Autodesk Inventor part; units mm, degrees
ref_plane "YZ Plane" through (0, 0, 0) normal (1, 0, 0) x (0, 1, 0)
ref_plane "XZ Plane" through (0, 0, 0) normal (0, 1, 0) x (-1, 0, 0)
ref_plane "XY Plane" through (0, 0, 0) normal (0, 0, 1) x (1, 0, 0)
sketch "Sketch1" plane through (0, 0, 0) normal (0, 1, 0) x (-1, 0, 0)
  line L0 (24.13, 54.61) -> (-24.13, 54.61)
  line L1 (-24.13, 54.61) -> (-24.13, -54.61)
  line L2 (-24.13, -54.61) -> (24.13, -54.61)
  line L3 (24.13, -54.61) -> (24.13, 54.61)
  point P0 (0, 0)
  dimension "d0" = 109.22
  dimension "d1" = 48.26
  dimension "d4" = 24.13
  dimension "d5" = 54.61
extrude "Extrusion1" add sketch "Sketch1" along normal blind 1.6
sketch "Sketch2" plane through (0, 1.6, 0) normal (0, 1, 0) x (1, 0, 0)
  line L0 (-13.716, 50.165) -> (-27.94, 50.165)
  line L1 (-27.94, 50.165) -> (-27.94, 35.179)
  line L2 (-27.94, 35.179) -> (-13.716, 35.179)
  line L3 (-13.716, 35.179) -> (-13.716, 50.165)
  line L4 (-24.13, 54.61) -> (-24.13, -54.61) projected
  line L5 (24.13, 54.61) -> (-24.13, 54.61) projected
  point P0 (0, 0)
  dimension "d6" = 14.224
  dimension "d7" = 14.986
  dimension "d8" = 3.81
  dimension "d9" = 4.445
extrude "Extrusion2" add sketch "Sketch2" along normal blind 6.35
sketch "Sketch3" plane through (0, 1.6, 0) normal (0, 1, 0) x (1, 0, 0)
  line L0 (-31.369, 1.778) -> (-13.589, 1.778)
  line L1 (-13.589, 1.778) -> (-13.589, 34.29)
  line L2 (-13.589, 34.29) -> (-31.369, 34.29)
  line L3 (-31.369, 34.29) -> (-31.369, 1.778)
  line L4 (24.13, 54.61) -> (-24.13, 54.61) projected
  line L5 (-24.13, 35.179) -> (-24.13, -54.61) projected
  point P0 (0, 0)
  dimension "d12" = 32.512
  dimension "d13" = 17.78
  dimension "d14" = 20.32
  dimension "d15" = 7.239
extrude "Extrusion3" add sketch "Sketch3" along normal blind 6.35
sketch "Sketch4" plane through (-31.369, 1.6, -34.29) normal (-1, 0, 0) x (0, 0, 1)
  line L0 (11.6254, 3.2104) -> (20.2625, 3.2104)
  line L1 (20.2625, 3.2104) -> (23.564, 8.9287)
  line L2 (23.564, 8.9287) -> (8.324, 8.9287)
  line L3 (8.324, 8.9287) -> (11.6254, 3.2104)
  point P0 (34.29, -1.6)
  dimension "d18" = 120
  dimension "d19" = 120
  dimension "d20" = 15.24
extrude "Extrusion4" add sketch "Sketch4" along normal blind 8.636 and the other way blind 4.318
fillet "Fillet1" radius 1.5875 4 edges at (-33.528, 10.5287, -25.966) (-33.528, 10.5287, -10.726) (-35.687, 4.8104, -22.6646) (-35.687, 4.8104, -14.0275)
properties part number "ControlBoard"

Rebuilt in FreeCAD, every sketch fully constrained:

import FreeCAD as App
import Part
import Sketcher
from FreeCAD import Vector
Q = App.Units.Quantity


def edges_at(feature, points):
    """Names of the edges that pass closest to the given points."""
    edges = feature.Shape.Edges
    near = lambda p: min(range(len(edges)), key=lambda i: edges[i].distToShape(Part.Vertex(*p))[0])
    return sorted({f"Edge{near(p) + 1}" for p in points})


def add_polygon(sketch, points):
    """Adds a closed chain of lines whose ends are joined by coincident constraints."""
    first, n = sketch.GeometryCount, len(points)
    for a, b in zip(points, points[1:] + points[:1]):
        sketch.addGeometry(Part.LineSegment(App.Vector(*a, 0), App.Vector(*b, 0)), False)
    for i in range(n):
        sketch.addConstraint(Sketcher.Constraint("Coincident", first + i, 2, first + (i + 1) % n, 1))

doc = App.newDocument("Part")
params = doc.addObject("Spreadsheet::Sheet", "Params")
for row, (alias, value) in enumerate([
    ("sketch1_width", "1.9 in"),
    ("sketch1_height", "4.3 in"),
    ("pad1_length", "0.0629921 in"),
    ("sketch2_width", "0.56 in"),
    ("sketch2_height", "0.59 in"),
    ("pad2_length", "0.25 in"),
    ("sketch3_width", "0.7 in"),
    ("sketch3_height", "1.28 in"),
    ("pad3_length", "0.25 in"),
    ("sketch4_height", "0.6 in"),
    ("pad4_length", "0.34 in"),
    ("pad4_length2", "0.17 in"),
    ("fillet_radius", "0.0625 in"),
], start=1):
    params.set(f"A{row}", alias)
    params.set(f"B{row}", "=" + value)
    params.setAlias(f"B{row}", alias)

body = doc.addObject("PartDesign::Body", "Body")

# Sketch on XZ plane
sketch1 = body.newObject("Sketcher::SketchObject", "Sketch")
sketch1.AttachmentSupport = (doc.getObject("XZ_Plane"), [""])
sketch1.MapMode = "FlatFace"
add_polygon(sketch1, [(-24, -55), (-24, 55), (24, 55), (24, -55)])  # lines 0-3
sketch1.addConstraint(Sketcher.Constraint("Vertical", 0))
sketch1.addConstraint(Sketcher.Constraint("Horizontal", 1))
sketch1.addConstraint(Sketcher.Constraint("Vertical", 2))
sketch1.addConstraint(Sketcher.Constraint("Horizontal", 3))
sketch1.addConstraint(Sketcher.Constraint("Symmetric", 0, 2, 2, 2, -1, 1))
sketch1.addConstraint(Sketcher.Constraint("DistanceX", 1, 1, 1, 2, Q("1.9 in")))
sketch1.addConstraint(Sketcher.Constraint("DistanceY", 0, 1, 0, 2, Q("4.3 in")))
sketch1.setExpression("Constraints[9]", "Params.sketch1_width")
sketch1.setExpression("Constraints[10]", "Params.sketch1_height")
pad1 = body.newObject("PartDesign::Pad", "Pad")
pad1.Profile = sketch1
pad1.setExpression("Length", "Params.pad1_length")
pad1.Reversed = True

# Sketch on XZ plane
sketch2 = body.newObject("Sketcher::SketchObject", "Sketch001")
sketch2.AttachmentSupport = (doc.getObject("XZ_Plane"), [""])
sketch2.MapMode = "FlatFace"
sketch2.AttachmentOffset = App.Placement(Vector(0, 0, -0.0629921 * 25.4), App.Rotation())
add_polygon(sketch2, [(-14, -35), (-14, -50), (-28, -50), (-28, -35)])  # lines 0-3
sketch2.addConstraint(Sketcher.Constraint("Vertical", 0))
sketch2.addConstraint(Sketcher.Constraint("Horizontal", 1))
sketch2.addConstraint(Sketcher.Constraint("Vertical", 2))
sketch2.addConstraint(Sketcher.Constraint("Horizontal", 3))
sketch2.addConstraint(Sketcher.Constraint("DistanceX", 1, 2, 1, 1, Q("0.56 in")))
sketch2.addConstraint(Sketcher.Constraint("DistanceY", 0, 2, 0, 1, Q("0.59 in")))
sketch2.addConstraint(Sketcher.Constraint("DistanceX", 1, 2, -1, 1, Q("1.1 in")))
sketch2.addConstraint(Sketcher.Constraint("DistanceY", 0, 2, -1, 1, Q("1.975 in")))
sketch2.setExpression("Constraints[8]", "Params.sketch2_width")
sketch2.setExpression("Constraints[9]", "Params.sketch2_height")
pad2 = body.newObject("PartDesign::Pad", "Pad001")
pad2.Profile = sketch2
pad2.setExpression("Length", "Params.pad2_length")
pad2.Reversed = True

# Sketch on XZ plane
sketch3 = body.newObject("Sketcher::SketchObject", "Sketch002")
sketch3.AttachmentSupport = (doc.getObject("XZ_Plane"), [""])
sketch3.MapMode = "FlatFace"
sketch3.AttachmentOffset = App.Placement(Vector(0, 0, -0.0629921 * 25.4), App.Rotation())
add_polygon(sketch3, [(-31, -34), (-31, -2), (-14, -2), (-14, -34)])  # lines 0-3
sketch3.addConstraint(Sketcher.Constraint("Vertical", 0))
sketch3.addConstraint(Sketcher.Constraint("Horizontal", 1))
sketch3.addConstraint(Sketcher.Constraint("Vertical", 2))
sketch3.addConstraint(Sketcher.Constraint("Horizontal", 3))
sketch3.addConstraint(Sketcher.Constraint("DistanceX", 1, 1, 1, 2, Q("0.7 in")))
sketch3.addConstraint(Sketcher.Constraint("DistanceY", 0, 1, 0, 2, Q("1.28 in")))
sketch3.addConstraint(Sketcher.Constraint("DistanceY", 0, 2, -1, 1, Q("0.07 in")))
sketch3.addConstraint(Sketcher.Constraint("DistanceX", 0, 2, -1, 1, Q("1.235 in")))
sketch3.setExpression("Constraints[8]", "Params.sketch3_width")
sketch3.setExpression("Constraints[9]", "Params.sketch3_height")
pad3 = body.newObject("PartDesign::Pad", "Pad002")
pad3.Profile = sketch3
pad3.setExpression("Length", "Params.pad3_length")
pad3.Reversed = True

# Sketch on YZ plane
sketch4 = body.newObject("Sketcher::SketchObject", "Sketch003")
sketch4.AttachmentSupport = (doc.getObject("YZ_Plane"), [""])
sketch4.MapMode = "FlatFace"
sketch4.AttachmentOffset = App.Placement(Vector(0, 0, -1.235 * 25.4), App.Rotation())
add_polygon(sketch4, [(11, -26), (5, -23), (5, -14), (11, -11)])  # lines 0-3
sketch4.addConstraint(Sketcher.Constraint("Vertical", 1))
sketch4.addConstraint(Sketcher.Constraint("Vertical", 3))
sketch4.addConstraint(Sketcher.Constraint("Equal", 0, 2))
sketch4.addConstraint(Sketcher.Constraint("DistanceY", 3, 2, 3, 1, Q("0.6 in")))
sketch4.addConstraint(Sketcher.Constraint("Angle", 0, Q("150.0005 deg")))
sketch4.addConstraint(Sketcher.Constraint("DistanceY", 1, 1, 1, 2, 8.637))
sketch4.addConstraint(Sketcher.Constraint("DistanceY", 0, 2, -1, 1, Q("0.8923 in")))
sketch4.addConstraint(Sketcher.Constraint("DistanceX", -1, 1, 0, 2, 4.8104))
sketch4.setExpression("Constraints[7]", "Params.sketch4_height")
pad4 = body.newObject("PartDesign::Pad", "Pad003")
pad4.Profile = sketch4
pad4.Type = "TwoLengths"
pad4.setExpression("Length", "Params.pad4_length")
pad4.setExpression("Length2", "Params.pad4_length2")
pad4.Reversed = True
doc.recompute()

fillet = body.newObject("PartDesign::Fillet", "Fillet")
fillet.Base = (pad4, edges_at(pad4, [
    (-33.528, 10.529, -25.966),
    (-33.528, 10.529, -10.726),
    (-35.687, 4.81, -22.665),
    (-35.687, 4.81, -14.027),
]))
fillet.setExpression("Radius", "Params.fillet_radius")

doc.recompute()
